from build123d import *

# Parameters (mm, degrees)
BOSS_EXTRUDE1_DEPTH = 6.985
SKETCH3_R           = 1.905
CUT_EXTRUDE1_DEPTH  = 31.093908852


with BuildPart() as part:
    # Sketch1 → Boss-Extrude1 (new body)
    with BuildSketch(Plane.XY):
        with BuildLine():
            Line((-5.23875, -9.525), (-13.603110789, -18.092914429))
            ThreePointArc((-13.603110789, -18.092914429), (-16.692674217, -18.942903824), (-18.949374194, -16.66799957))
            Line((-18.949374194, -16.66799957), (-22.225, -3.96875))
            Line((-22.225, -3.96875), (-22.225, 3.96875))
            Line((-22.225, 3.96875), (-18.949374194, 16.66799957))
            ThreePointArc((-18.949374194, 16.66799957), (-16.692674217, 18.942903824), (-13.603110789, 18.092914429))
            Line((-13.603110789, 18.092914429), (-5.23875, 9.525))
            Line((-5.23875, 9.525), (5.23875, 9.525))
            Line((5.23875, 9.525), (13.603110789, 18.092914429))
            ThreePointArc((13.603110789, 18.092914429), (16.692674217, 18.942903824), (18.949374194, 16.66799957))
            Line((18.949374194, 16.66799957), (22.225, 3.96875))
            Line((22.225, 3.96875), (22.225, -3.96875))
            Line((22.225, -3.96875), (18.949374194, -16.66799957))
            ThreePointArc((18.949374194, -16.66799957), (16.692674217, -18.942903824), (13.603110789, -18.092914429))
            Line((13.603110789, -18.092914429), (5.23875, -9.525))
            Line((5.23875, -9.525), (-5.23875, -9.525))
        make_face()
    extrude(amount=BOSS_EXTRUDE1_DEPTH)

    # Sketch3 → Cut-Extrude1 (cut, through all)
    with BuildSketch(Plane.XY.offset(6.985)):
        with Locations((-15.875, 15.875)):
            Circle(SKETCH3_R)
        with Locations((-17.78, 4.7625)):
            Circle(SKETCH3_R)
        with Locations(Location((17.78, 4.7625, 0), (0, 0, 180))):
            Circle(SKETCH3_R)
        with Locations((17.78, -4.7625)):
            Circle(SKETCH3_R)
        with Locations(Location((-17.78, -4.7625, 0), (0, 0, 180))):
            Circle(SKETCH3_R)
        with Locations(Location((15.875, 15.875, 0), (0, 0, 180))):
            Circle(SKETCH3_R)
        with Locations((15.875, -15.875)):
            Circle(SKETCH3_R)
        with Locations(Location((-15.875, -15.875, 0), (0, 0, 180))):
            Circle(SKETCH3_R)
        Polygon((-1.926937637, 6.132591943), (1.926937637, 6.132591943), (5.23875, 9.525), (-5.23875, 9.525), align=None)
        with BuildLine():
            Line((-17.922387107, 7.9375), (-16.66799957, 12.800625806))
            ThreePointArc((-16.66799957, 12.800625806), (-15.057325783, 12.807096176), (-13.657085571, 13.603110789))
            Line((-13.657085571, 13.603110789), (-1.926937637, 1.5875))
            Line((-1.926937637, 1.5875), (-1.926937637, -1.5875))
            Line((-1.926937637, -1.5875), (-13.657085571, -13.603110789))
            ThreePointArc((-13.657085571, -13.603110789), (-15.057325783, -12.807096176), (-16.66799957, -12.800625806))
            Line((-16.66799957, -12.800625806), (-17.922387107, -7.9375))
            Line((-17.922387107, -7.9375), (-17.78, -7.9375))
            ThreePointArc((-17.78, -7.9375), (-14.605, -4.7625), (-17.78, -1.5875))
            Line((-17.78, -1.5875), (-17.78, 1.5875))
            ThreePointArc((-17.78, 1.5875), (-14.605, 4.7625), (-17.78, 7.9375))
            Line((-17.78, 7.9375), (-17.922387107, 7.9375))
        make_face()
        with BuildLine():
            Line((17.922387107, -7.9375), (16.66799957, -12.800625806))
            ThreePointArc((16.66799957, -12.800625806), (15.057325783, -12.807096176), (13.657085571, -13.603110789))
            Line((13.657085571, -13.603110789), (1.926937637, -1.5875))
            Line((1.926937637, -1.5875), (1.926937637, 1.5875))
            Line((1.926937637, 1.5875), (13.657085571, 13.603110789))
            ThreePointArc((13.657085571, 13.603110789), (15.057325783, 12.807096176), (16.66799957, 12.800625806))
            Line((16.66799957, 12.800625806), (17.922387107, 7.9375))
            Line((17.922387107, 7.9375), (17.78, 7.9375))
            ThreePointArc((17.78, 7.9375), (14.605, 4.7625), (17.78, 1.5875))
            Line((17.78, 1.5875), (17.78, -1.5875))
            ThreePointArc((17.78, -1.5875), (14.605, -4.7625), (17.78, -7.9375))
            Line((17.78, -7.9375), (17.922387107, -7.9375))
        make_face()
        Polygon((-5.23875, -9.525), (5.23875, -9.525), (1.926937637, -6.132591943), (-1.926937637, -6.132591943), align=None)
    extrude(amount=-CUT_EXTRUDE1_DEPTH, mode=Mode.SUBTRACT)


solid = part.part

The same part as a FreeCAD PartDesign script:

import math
import FreeCAD as App
import Part
import Sketcher
Q = App.Units.Quantity

doc = App.newDocument("Part")
params = doc.addObject("Spreadsheet::Sheet", "Params")
for row, (alias, value) in enumerate([
    ("sketch1_radius", "0.125 in"),
    ("sketch1_height", "0.3125 in"),
    ("pad1_length", "0.275 in"),
    ("sketch2_diameter", "0.15 in"),
    ("sketch2_radius", "0.125 in"),
], start=1):
    params.set(f"A{row}", alias)
    params.set(f"B{row}", "=" + value)
    params.setAlias(f"B{row}", alias)

body = doc.addObject("PartDesign::Body", "Body")

# Sketch on XY plane
sketch1 = body.newObject("Sketcher::SketchObject", "Sketch")
sketch1.AttachmentSupport = (doc.getObject("XY_Plane"), [""])
sketch1.MapMode = "FlatFace"
sketch1.addGeometry([
    Part.LineSegment(App.Vector(-13.603111, -18.092914, 0), App.Vector(-5.23875, -9.525, 0)),  # 0
    Part.LineSegment(App.Vector(-5.23875, -9.525, 0), App.Vector(5.23875, -9.525, 0)),  # 1
    Part.LineSegment(App.Vector(5.23875, -9.525, 0), App.Vector(13.603111, -18.092914, 0)),  # 2
    Part.ArcOfCircle(Part.Circle(App.Vector(15.875, -15.875, 0), App.Vector(0, 0, 1), 3.175), math.radians(-135.688756), math.radians(-14.463526)),  # 3
    Part.LineSegment(App.Vector(18.949374, -16.668, 0), App.Vector(22.225, -3.96875, 0)),  # 4
    Part.LineSegment(App.Vector(22.225, -3.96875, 0), App.Vector(22.225, 3.96875, 0)),  # 5
    Part.LineSegment(App.Vector(22.225, 3.96875, 0), App.Vector(18.949374, 16.668, 0)),  # 6
    Part.ArcOfCircle(Part.Circle(App.Vector(15.875, 15.875, 0), App.Vector(0, 0, 1), 3.175), math.radians(14.463526), math.radians(135.688756)),  # 7
    Part.LineSegment(App.Vector(13.603111, 18.092914, 0), App.Vector(5.23875, 9.525, 0)),  # 8
    Part.LineSegment(App.Vector(5.23875, 9.525, 0), App.Vector(-5.23875, 9.525, 0)),  # 9
    Part.LineSegment(App.Vector(-5.23875, 9.525, 0), App.Vector(-13.603111, 18.092914, 0)),  # 10
    Part.ArcOfCircle(Part.Circle(App.Vector(-15.875, 15.875, 0), App.Vector(0, 0, 1), 3.175), math.radians(44.311244), math.radians(165.536474)),  # 11
    Part.LineSegment(App.Vector(-18.949374, 16.668, 0), App.Vector(-22.225, 3.96875, 0)),  # 12
    Part.LineSegment(App.Vector(-22.225, 3.96875, 0), App.Vector(-22.225, -3.96875, 0)),  # 13
    Part.LineSegment(App.Vector(-22.225, -3.96875, 0), App.Vector(-18.949374, -16.668, 0)),  # 14
    Part.ArcOfCircle(Part.Circle(App.Vector(-15.875, -15.875, 0), App.Vector(0, 0, 1), 3.175), math.radians(-165.536474), math.radians(-44.311244)),  # 15
], False)
sketch1.addConstraint([
    Sketcher.Constraint("Coincident", 0, 2, 1, 1),
    Sketcher.Constraint("Coincident", 1, 2, 2, 1),
    Sketcher.Constraint("Tangent", 2, 2, 3, 1),
    Sketcher.Constraint("Tangent", 3, 2, 4, 1),
    Sketcher.Constraint("Coincident", 4, 2, 5, 1),
    Sketcher.Constraint("Coincident", 5, 2, 6, 1),
    Sketcher.Constraint("Tangent", 6, 2, 7, 1),
    Sketcher.Constraint("Tangent", 7, 2, 8, 1),
    Sketcher.Constraint("Coincident", 8, 2, 9, 1),
    Sketcher.Constraint("Coincident", 9, 2, 10, 1),
    Sketcher.Constraint("Tangent", 10, 2, 11, 1),
    Sketcher.Constraint("Tangent", 11, 2, 12, 1),
    Sketcher.Constraint("Coincident", 12, 2, 13, 1),
    Sketcher.Constraint("Coincident", 13, 2, 14, 1),
    Sketcher.Constraint("Tangent", 14, 2, 15, 1),
    Sketcher.Constraint("Tangent", 15, 2, 0, 1),
    Sketcher.Constraint("Horizontal", 1),
    Sketcher.Constraint("Vertical", 5),
    Sketcher.Constraint("Horizontal", 9),
    Sketcher.Constraint("Vertical", 13),
    Sketcher.Constraint("Equal", 3, 7),
    Sketcher.Constraint("Equal", 7, 11),
    Sketcher.Constraint("Equal", 11, 15),
    Sketcher.Constraint("Symmetric", 3, 3, 11, 3, -1, 1),
    Sketcher.Constraint("Symmetric", 7, 3, 15, 3, -1, 1),
    Sketcher.Constraint("Symmetric", 0, 2, 8, 2, -1, 1),
    Sketcher.Constraint("Symmetric", 4, 2, 12, 2, -1, 1),
    Sketcher.Constraint("Symmetric", 7, 3, 11, 3, -2),
    Sketcher.Constraint("Parallel", 2, 10),
    Sketcher.Constraint("Parallel", 6, 14),
    Sketcher.Constraint("Horizontal", 7, 2, 10, 2),
    Sketcher.Constraint("Horizontal", 6, 2, 11, 2),
    Sketcher.Constraint("Radius", 3, Q("0.125 in")),
    Sketcher.Constraint("DistanceY", 0, 2, 11, 3, Q("1 in")),
    Sketcher.Constraint("DistanceY", 5, 1, 5, 2, Q("0.3125 in")),
    Sketcher.Constraint("DistanceY", 3, 3, 7, 3, Q("1.25 in")),
    Sketcher.Constraint("DistanceX", 11, 3, 7, 3, Q("1.25 in")),
    Sketcher.Constraint("DistanceX", 3, 3, 4, 2, Q("0.25 in")),
    Sketcher.Constraint("DistanceX", 1, 1, 1, 2, Q("0.4125 in")),
])
sketch1.setExpression("Constraints[32]", "Params.sketch1_radius")
sketch1.setExpression("Constraints[34]", "Params.sketch1_height")
pad1 = body.newObject("PartDesign::Pad", "Pad")
pad1.Profile = sketch1
pad1.setExpression("Length", "Params.pad1_length")

# Sketch on XY plane
sketch2 = body.newObject("Sketcher::SketchObject", "Sketch001")
sketch2.AttachmentSupport = (doc.getObject("XY_Plane"), [""])
sketch2.MapMode = "FlatFace"
sketch2.AttachmentOffset = App.Placement(App.Vector(0, 0, 0.275 * 25.4), App.Rotation())
sketch2.addGeometry([
    Part.Circle(App.Vector(-15.875, 15.875, 0), App.Vector(0, 0, 1), 1.905),  # 0
    Part.Circle(App.Vector(-17.78, 4.7625, 0), App.Vector(0, 0, 1), 1.905),  # 1
    Part.Circle(App.Vector(17.78, 4.7625, 0), App.Vector(0, 0, 1), 1.905),  # 2
    Part.Circle(App.Vector(17.78, -4.7625, 0), App.Vector(0, 0, 1), 1.905),  # 3
    Part.Circle(App.Vector(-17.78, -4.7625, 0), App.Vector(0, 0, 1), 1.905),  # 4
    Part.Circle(App.Vector(15.875, 15.875, 0), App.Vector(0, 0, 1), 1.905),  # 5
    Part.Circle(App.Vector(15.875, -15.875, 0), App.Vector(0, 0, 1), 1.905),  # 6
    Part.Circle(App.Vector(-15.875, -15.875, 0), App.Vector(0, 0, 1), 1.905),  # 7
    Part.LineSegment(App.Vector(-1.926938, 6.132592, 0), App.Vector(1.926938, 6.132592, 0)),  # 8
    Part.LineSegment(App.Vector(1.926938, 6.132592, 0), App.Vector(5.23875, 9.525, 0)),  # 9
    Part.LineSegment(App.Vector(5.23875, 9.525, 0), App.Vector(-5.23875, 9.525, 0)),  # 10
    Part.LineSegment(App.Vector(-5.23875, 9.525, 0), App.Vector(-1.926938, 6.132592, 0)),  # 11
    Part.LineSegment(App.Vector(-16.668, 12.800626, 0), App.Vector(-17.922387, 7.9375, 0)),  # 12
    Part.LineSegment(App.Vector(-17.922387, 7.9375, 0), App.Vector(-17.78, 7.9375, 0)),  # 13
    Part.ArcOfCircle(Part.Circle(App.Vector(-17.78, 4.7625, 0), App.Vector(0, 0, 1), 3.175), math.radians(-90), math.radians(90)),  # 14
    Part.LineSegment(App.Vector(-17.78, 1.5875, 0), App.Vector(-17.78, -1.5875, 0)),  # 15
    Part.ArcOfCircle(Part.Circle(App.Vector(-17.78, -4.7625, 0), App.Vector(0, 0, 1), 3.175), math.radians(-90), math.radians(90)),  # 16
    Part.LineSegment(App.Vector(-17.78, -7.9375, 0), App.Vector(-17.922387, -7.9375, 0)),  # 17
    Part.LineSegment(App.Vector(-17.922387, -7.9375, 0), App.Vector(-16.668, -12.800626, 0)),  # 18
    Part.ArcOfCircle(Part.Circle(App.Vector(-15.875, -15.875, 0), App.Vector(0, 0, 1), 3.175), math.radians(45.688756), math.radians(104.463526)),  # 19
    Part.LineSegment(App.Vector(-13.657086, -13.603111, 0), App.Vector(-1.926938, -1.5875, 0)),  # 20
    Part.LineSegment(App.Vector(-1.926938, -1.5875, 0), App.Vector(-1.926938, 1.5875, 0)),  # 21
    Part.LineSegment(App.Vector(-1.926938, 1.5875, 0), App.Vector(-13.657086, 13.603111, 0)),  # 22
    Part.ArcOfCircle(Part.Circle(App.Vector(-15.875, 15.875, 0), App.Vector(0, 0, 1), 3.175), math.radians(-104.463526), math.radians(-45.688756)),  # 23
    Part.LineSegment(App.Vector(16.668, -12.800626, 0), App.Vector(17.922387, -7.9375, 0)),  # 24
    Part.LineSegment(App.Vector(17.922387, -7.9375, 0), App.Vector(17.78, -7.9375, 0)),  # 25
    Part.ArcOfCircle(Part.Circle(App.Vector(17.78, -4.7625, 0), App.Vector(0, 0, 1), 3.175), math.radians(90), math.radians(270)),  # 26
    Part.LineSegment(App.Vector(17.78, -1.5875, 0), App.Vector(17.78, 1.5875, 0)),  # 27
    Part.ArcOfCircle(Part.Circle(App.Vector(17.78, 4.7625, 0), App.Vector(0, 0, 1), 3.175), math.radians(90), math.radians(270)),  # 28
    Part.LineSegment(App.Vector(17.78, 7.9375, 0), App.Vector(17.922387, 7.9375, 0)),  # 29
    Part.LineSegment(App.Vector(17.922387, 7.9375, 0), App.Vector(16.668, 12.800626, 0)),  # 30
    Part.ArcOfCircle(Part.Circle(App.Vector(15.875, 15.875, 0), App.Vector(0, 0, 1), 3.175), math.radians(-134.311244), math.radians(-75.536474)),  # 31
    Part.LineSegment(App.Vector(13.657086, 13.603111, 0), App.Vector(1.926938, 1.5875, 0)),  # 32
    Part.LineSegment(App.Vector(1.926938, 1.5875, 0), App.Vector(1.926938, -1.5875, 0)),  # 33
    Part.LineSegment(App.Vector(1.926938, -1.5875, 0), App.Vector(13.657086, -13.603111, 0)),  # 34
    Part.ArcOfCircle(Part.Circle(App.Vector(15.875, -15.875, 0), App.Vector(0, 0, 1), 3.175), math.radians(75.536474), math.radians(134.311244)),  # 35
    Part.LineSegment(App.Vector(-5.23875, -9.525, 0), App.Vector(5.23875, -9.525, 0)),  # 36
    Part.LineSegment(App.Vector(5.23875, -9.525, 0), App.Vector(1.926938, -6.132592, 0)),  # 37
    Part.LineSegment(App.Vector(1.926938, -6.132592, 0), App.Vector(-1.926938, -6.132592, 0)),  # 38
    Part.LineSegment(App.Vector(-1.926938, -6.132592, 0), App.Vector(-5.23875, -9.525, 0)),  # 39
], False)
sketch2.addConstraint([
    Sketcher.Constraint("Coincident", 8, 2, 9, 1),
    Sketcher.Constraint("Coincident", 9, 2, 10, 1),
    Sketcher.Constraint("Coincident", 10, 2, 11, 1),
    Sketcher.Constraint("Coincident", 11, 2, 8, 1),
    Sketcher.Constraint("Coincident", 12, 2, 13, 1),
    Sketcher.Constraint("Tangent", 13, 2, 14, 2),
    Sketcher.Constraint("Coincident", 14, 1, 15, 1),
    Sketcher.Constraint("Coincident", 15, 2, 16, 2),
    Sketcher.Constraint("Tangent", 16, 1, 17, 1),
    Sketcher.Constraint("Coincident", 17, 2, 18, 1),
    Sketcher.Constraint("Coincident", 18, 2, 19, 2),
    Sketcher.Constraint("Coincident", 19, 1, 20, 1),
    Sketcher.Constraint("Coincident", 20, 2, 21, 1),
    Sketcher.Constraint("Coincident", 21, 2, 22, 1),
    Sketcher.Constraint("Coincident", 22, 2, 23, 2),
    Sketcher.Constraint("Coincident", 23, 1, 12, 1),
    Sketcher.Constraint("Coincident", 24, 2, 25, 1),
    Sketcher.Constraint("Tangent", 25, 2, 26, 2),
    Sketcher.Constraint("Coincident", 26, 1, 27, 1),
    Sketcher.Constraint("Coincident", 27, 2, 28, 2),
    Sketcher.Constraint("Tangent", 28, 1, 29, 1),
    Sketcher.Constraint("Coincident", 29, 2, 30, 1),
    Sketcher.Constraint("Coincident", 30, 2, 31, 2),
    Sketcher.Constraint("Coincident", 31, 1, 32, 1),
    Sketcher.Constraint("Coincident", 32, 2, 33, 1),
    Sketcher.Constraint("Coincident", 33, 2, 34, 1),
    Sketcher.Constraint("Coincident", 34, 2, 35, 2),
    Sketcher.Constraint("Coincident", 35, 1, 24, 1),
    Sketcher.Constraint("Coincident", 36, 2, 37, 1),
    Sketcher.Constraint("Coincident", 37, 2, 38, 1),
    Sketcher.Constraint("Coincident", 38, 2, 39, 1),
    Sketcher.Constraint("Coincident", 39, 2, 36, 1),
    Sketcher.Constraint("Horizontal", 8),
    Sketcher.Constraint("Horizontal", 10),
    Sketcher.Constraint("Horizontal", 13),
    Sketcher.Constraint("Vertical", 15),
    Sketcher.Constraint("Horizontal", 17),
    Sketcher.Constraint("Vertical", 21),
    Sketcher.Constraint("Horizontal", 25),
    Sketcher.Constraint("Vertical", 27),
    Sketcher.Constraint("Horizontal", 29),
    Sketcher.Constraint("Vertical", 33),
    Sketcher.Constraint("Horizontal", 36),
    Sketcher.Constraint("Horizontal", 38),
    Sketcher.Constraint("Coincident", 14, 3, 1, 3),
    Sketcher.Constraint("Coincident", 16, 3, 4, 3),
    Sketcher.Constraint("Coincident", 19, 3, 7, 3),
    Sketcher.Constraint("Coincident", 23, 3, 0, 3),
    Sketcher.Constraint("Coincident", 26, 3, 3, 3),
    Sketcher.Constraint("Coincident", 28, 3, 2, 3),
    Sketcher.Constraint("Coincident", 31, 3, 5, 3),
    Sketcher.Constraint("Coincident", 35, 3, 6, 3),
    Sketcher.Constraint("Equal", 0, 1),
    Sketcher.Constraint("Equal", 1, 2),
    Sketcher.Constraint("Equal", 2, 3),
    Sketcher.Constraint("Equal", 3, 4),
    Sketcher.Constraint("Equal", 4, 5),
    Sketcher.Constraint("Equal", 5, 6),
    Sketcher.Constraint("Equal", 6, 7),
    Sketcher.Constraint("Equal", 14, 16),
    Sketcher.Constraint("Equal", 16, 19),
    Sketcher.Constraint("Equal", 19, 23),
    Sketcher.Constraint("Equal", 23, 26),
    Sketcher.Constraint("Equal", 26, 28),
    Sketcher.Constraint("Equal", 28, 31),
    Sketcher.Constraint("Equal", 31, 35),
    Sketcher.Constraint("Symmetric", 1, 3, 3, 3, -1, 1),
    Sketcher.Constraint("Symmetric", 2, 3, 4, 3, -1, 1),
    Sketcher.Constraint("Symmetric", 0, 3, 6, 3, -1, 1),
    Sketcher.Constraint("Symmetric", 5, 3, 7, 3, -1, 1),
    Sketcher.Constraint("Symmetric", 20, 2, 32, 2, -1, 1),
    Sketcher.Constraint("Symmetric", 10, 2, 36, 2, -1, 1),
    Sketcher.Constraint("Symmetric", 11, 2, 37, 2, -1, 1),
    Sketcher.Constraint("Symmetric", 1, 3, 2, 3, -2),
    Sketcher.Constraint("Symmetric", 0, 3, 5, 3, -2),
    Sketcher.Constraint("Parallel", 9, 20),
    Sketcher.Constraint("Parallel", 11, 22),
    Sketcher.Constraint("Parallel", 12, 24),
    Sketcher.Constraint("Parallel", 18, 30),
    Sketcher.Constraint("Parallel", 20, 32),
    Sketcher.Constraint("Parallel", 22, 34),
    Sketcher.Constraint("Parallel", 32, 39),
    Sketcher.Constraint("Horizontal", 15, 2, 20, 2),
    Sketcher.Constraint("Horizontal", 14, 1, 21, 2),
    Sketcher.Constraint("Horizontal", 23, 1, 30, 2),
    Sketcher.Constraint("Horizontal", 22, 2, 31, 1),
    Sketcher.Constraint("Horizontal", 26, 1, 33, 2),
    Sketcher.Constraint("Horizontal", 18, 2, 35, 1),
    Sketcher.Constraint("Vertical", 13, 2, 14, 1),
    Sketcher.Constraint("Vertical", 12, 2, 17, 2),
    Sketcher.Constraint("Vertical", 11, 2, 20, 2),
    Sketcher.Constraint("Vertical", 18, 2, 23, 1),
    Sketcher.Constraint("Vertical", 25, 2, 26, 1),
    Sketcher.Constraint("Vertical", 8, 2, 32, 2),
    Sketcher.Constraint("Vertical", 21, 2, 38, 2),
    Sketcher.Constraint("Diameter", 0, Q("0.15 in")),
    Sketcher.Constraint("Radius", 14, Q("0.125 in")),
    Sketcher.Constraint("DistanceX", 1, 3, -1, 1, Q("0.7 in")),
    Sketcher.Constraint("DistanceY", 4, 3, 12, 2, Q("0.5 in")),
    Sketcher.Constraint("DistanceX", 0, 3, 5, 3, Q("1.25 in")),
    Sketcher.Constraint("DistanceY", 6, 3, 5, 3, Q("1.25 in")),
    Sketcher.Constraint("DistanceY", 9, 2, 5, 3, Q("0.25 in")),
    Sketcher.Constraint("DistanceX", 10, 2, 10, 1, Q("0.4125 in")),
    Sketcher.Constraint("Distance", 12, 5.022298),
    Sketcher.Constraint("Distance", 20, 16.792),
    Sketcher.Constraint("DistanceX", 18, 2, -1, 1, 16.668),
    Sketcher.Constraint("DistanceX", 17, 2, 19, 1, 4.265302),
])
sketch2.setExpression("Constraints[95]", "Params.sketch2_diameter")
sketch2.setExpression("Constraints[96]", "Params.sketch2_radius")
pocket1 = body.newObject("PartDesign::Pocket", "Pocket")
pocket1.Profile = sketch2
pocket1.Type = "ThroughAll"

doc.recompute()
